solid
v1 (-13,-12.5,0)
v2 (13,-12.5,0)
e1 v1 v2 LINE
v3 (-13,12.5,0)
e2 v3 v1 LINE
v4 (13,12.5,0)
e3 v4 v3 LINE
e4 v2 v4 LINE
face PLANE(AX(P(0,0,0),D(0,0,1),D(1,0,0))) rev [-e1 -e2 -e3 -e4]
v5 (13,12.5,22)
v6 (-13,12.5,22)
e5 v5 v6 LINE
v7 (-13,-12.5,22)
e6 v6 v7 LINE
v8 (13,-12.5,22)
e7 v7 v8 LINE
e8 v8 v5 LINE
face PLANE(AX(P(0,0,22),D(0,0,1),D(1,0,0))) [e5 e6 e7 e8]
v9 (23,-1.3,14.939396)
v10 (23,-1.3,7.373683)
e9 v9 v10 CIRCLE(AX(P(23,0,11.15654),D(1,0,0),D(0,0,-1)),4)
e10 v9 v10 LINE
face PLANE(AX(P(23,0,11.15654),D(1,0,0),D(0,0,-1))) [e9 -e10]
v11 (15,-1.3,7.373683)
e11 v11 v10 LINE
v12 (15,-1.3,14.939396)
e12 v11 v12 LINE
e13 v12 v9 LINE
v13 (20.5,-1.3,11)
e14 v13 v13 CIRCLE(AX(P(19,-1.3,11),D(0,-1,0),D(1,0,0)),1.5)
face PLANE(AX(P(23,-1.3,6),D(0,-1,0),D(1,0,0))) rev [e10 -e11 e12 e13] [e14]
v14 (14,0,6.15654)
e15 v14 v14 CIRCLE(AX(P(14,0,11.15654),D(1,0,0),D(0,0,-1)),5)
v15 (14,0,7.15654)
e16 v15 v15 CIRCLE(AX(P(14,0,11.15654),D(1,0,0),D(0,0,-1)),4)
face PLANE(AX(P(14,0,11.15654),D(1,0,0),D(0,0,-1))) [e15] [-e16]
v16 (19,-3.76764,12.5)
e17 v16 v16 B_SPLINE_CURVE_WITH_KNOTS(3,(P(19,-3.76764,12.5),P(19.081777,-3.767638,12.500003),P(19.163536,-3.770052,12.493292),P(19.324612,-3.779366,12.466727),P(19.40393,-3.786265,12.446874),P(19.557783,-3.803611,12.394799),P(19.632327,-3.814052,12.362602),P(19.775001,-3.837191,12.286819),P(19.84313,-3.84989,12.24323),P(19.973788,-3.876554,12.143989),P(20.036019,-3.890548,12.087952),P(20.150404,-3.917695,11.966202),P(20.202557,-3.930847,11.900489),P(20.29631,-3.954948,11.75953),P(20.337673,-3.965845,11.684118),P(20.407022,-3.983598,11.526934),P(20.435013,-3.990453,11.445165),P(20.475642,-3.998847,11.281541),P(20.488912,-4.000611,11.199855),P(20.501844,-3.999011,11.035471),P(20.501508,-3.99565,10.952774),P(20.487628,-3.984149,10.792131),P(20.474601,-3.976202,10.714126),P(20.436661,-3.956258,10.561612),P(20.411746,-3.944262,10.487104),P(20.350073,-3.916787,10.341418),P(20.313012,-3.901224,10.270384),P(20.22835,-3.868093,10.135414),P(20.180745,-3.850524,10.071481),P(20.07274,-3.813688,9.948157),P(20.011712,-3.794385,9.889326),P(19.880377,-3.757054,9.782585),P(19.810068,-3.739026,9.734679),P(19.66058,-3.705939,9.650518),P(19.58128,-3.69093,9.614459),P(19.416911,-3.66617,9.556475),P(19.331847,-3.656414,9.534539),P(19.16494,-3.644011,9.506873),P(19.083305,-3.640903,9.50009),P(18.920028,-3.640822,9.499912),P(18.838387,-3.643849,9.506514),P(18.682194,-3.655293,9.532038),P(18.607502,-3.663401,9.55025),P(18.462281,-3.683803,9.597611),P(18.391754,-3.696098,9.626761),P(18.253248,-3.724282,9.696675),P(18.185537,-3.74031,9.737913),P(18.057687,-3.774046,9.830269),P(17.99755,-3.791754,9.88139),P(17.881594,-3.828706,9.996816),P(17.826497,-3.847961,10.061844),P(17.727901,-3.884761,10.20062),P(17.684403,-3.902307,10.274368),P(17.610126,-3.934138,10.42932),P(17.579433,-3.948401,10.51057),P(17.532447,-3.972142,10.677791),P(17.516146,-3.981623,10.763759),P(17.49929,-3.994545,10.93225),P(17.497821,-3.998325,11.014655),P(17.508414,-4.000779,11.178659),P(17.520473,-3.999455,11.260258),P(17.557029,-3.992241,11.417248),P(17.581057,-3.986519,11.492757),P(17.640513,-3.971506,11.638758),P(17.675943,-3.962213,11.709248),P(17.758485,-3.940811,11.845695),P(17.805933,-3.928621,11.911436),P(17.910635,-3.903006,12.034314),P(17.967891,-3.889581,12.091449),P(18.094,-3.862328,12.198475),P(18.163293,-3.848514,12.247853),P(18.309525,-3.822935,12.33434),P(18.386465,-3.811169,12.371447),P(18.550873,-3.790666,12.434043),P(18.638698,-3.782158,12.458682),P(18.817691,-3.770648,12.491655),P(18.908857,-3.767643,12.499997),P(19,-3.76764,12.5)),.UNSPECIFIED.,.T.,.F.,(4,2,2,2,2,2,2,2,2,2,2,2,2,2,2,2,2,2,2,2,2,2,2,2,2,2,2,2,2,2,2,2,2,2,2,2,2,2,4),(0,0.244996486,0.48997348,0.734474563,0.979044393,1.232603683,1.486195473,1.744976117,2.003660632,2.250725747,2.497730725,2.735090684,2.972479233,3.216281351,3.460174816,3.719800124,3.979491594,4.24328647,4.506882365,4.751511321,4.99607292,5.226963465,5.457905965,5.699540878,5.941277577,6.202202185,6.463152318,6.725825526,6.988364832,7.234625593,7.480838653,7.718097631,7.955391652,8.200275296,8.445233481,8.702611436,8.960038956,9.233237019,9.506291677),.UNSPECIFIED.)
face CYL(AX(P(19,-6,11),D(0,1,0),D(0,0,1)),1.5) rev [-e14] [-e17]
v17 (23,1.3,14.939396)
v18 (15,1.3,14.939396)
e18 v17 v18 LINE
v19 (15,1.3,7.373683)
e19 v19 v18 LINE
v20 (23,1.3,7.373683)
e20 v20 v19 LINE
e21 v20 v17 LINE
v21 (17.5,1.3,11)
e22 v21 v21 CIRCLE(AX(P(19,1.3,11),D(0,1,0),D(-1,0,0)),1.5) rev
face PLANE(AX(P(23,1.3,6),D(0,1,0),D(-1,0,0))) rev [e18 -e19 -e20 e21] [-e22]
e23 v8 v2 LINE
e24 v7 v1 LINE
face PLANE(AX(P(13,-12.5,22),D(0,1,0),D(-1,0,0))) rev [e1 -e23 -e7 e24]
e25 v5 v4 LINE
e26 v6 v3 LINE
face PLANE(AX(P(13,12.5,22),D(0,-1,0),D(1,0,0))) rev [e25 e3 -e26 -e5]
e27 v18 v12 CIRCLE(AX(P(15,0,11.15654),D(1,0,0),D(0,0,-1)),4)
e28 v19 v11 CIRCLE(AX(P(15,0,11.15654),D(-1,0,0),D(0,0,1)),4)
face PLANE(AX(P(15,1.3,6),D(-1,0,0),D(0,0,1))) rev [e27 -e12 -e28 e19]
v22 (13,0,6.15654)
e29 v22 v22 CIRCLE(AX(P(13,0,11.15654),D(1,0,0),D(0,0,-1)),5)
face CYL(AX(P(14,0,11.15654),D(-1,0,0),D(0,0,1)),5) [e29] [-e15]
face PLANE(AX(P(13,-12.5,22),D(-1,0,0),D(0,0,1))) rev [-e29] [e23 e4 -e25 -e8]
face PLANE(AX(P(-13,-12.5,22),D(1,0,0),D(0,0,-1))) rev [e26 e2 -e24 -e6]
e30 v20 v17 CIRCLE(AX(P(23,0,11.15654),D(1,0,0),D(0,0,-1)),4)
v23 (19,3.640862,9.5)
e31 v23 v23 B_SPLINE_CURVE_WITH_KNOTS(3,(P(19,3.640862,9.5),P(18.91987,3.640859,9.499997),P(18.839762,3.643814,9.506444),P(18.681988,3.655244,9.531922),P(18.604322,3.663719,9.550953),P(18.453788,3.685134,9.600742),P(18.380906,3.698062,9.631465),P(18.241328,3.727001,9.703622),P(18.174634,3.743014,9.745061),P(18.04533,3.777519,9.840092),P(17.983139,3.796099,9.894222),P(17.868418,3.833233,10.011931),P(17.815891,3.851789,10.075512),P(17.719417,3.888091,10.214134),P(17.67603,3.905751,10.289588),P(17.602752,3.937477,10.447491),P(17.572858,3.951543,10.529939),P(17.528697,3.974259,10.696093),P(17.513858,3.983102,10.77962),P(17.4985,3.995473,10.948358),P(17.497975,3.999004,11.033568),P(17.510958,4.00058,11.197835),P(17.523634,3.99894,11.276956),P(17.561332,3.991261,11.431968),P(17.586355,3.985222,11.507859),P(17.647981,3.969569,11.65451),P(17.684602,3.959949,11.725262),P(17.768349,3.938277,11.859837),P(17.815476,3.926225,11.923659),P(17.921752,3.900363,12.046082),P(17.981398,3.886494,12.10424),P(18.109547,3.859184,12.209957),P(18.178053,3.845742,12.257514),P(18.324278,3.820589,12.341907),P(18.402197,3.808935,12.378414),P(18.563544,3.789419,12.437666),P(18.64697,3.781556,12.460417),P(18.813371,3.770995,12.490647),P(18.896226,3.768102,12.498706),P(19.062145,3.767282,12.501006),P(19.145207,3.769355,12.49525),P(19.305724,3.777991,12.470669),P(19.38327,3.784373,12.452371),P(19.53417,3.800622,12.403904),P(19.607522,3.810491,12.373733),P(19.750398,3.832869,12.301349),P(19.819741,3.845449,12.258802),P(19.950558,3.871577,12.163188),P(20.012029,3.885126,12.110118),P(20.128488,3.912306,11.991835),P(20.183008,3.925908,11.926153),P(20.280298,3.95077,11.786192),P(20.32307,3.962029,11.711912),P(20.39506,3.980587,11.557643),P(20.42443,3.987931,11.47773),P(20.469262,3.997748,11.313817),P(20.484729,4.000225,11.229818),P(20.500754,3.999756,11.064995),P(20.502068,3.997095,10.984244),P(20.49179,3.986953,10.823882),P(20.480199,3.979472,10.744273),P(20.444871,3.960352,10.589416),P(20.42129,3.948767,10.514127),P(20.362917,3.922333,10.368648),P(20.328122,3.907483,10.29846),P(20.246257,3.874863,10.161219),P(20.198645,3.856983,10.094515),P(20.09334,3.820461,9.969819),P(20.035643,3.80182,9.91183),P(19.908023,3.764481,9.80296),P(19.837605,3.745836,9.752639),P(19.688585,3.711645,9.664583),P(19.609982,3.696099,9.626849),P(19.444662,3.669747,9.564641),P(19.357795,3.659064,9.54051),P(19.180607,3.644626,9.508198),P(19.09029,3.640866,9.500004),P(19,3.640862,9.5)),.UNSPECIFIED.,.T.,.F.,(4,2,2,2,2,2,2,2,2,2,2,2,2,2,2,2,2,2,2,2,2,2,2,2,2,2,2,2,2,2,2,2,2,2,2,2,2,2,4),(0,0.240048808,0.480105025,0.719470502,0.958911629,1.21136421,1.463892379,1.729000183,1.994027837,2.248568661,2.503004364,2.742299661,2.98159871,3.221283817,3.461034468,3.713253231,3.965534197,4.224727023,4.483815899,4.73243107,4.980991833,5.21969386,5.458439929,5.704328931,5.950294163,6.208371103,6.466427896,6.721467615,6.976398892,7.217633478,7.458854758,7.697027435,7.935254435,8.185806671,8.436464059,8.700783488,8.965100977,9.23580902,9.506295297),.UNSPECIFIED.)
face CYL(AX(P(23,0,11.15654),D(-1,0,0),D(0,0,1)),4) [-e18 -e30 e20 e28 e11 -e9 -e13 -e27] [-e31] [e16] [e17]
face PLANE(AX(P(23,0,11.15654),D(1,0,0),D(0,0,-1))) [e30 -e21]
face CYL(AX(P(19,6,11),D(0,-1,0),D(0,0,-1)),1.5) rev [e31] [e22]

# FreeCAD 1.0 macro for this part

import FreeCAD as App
import Part
import Sketcher

V = App.Vector

doc = App.newDocument("Part")
body = doc.addObject("PartDesign::Body", "Body")

# Sketch on XY plane
sketch1 = body.newObject("Sketcher::SketchObject", "Sketch")
sketch1.AttachmentSupport = (doc.getObject("XY_Plane"), [""])
sketch1.MapMode = "FlatFace"
sketch1.addGeometry(Part.LineSegment(V(-13, 12, 0), V(-13, -12, 0)), False)
sketch1.addGeometry(Part.LineSegment(V(-13, -12, 0), V(13, -12, 0)), False)
sketch1.addGeometry(Part.LineSegment(V(13, -12, 0), V(13, 12, 0)), False)
sketch1.addGeometry(Part.LineSegment(V(13, 12, 0), V(-13, 12, 0)), False)
sketch1.addConstraint(Sketcher.Constraint("Coincident", 0, 2, 1, 1))
sketch1.addConstraint(Sketcher.Constraint("Coincident", 1, 2, 2, 1))
sketch1.addConstraint(Sketcher.Constraint("Coincident", 2, 2, 3, 1))
sketch1.addConstraint(Sketcher.Constraint("Coincident", 3, 2, 0, 1))
sketch1.addConstraint(Sketcher.Constraint("Vertical", 0))
sketch1.addConstraint(Sketcher.Constraint("Horizontal", 1))
sketch1.addConstraint(Sketcher.Constraint("Vertical", 2))
sketch1.addConstraint(Sketcher.Constraint("Horizontal", 3))
sketch1.addConstraint(Sketcher.Constraint("Symmetric", 0, 2, 2, 2, -1, 1))
sketch1.addConstraint(Sketcher.Constraint("DistanceX", 1, 1, 1, 2, 26.0))
sketch1.addConstraint(Sketcher.Constraint("DistanceY", 0, 2, 0, 1, 25.0))
pad1 = body.newObject("PartDesign::Pad", "Pad")
pad1.Profile = sketch1
pad1.Length = 22

# Sketch on YZ plane
sketch2 = body.newObject("Sketcher::SketchObject", "Sketch001")
sketch2.AttachmentSupport = (doc.getObject("YZ_Plane"), [""])
sketch2.MapMode = "FlatFace"
sketch2.AttachmentOffset = App.Placement(V(0, 0, 13), App.Rotation())
sketch2.addGeometry(Part.Circle(V(0, 11, 0), V(0, 0, 1), 5), False)
sketch2.addConstraint(Sketcher.Constraint("PointOnObject", 0, 3, -2))
sketch2.addConstraint(Sketcher.Constraint("Diameter", 0, 10.0))
sketch2.addConstraint(Sketcher.Constraint("DistanceY", -1, 1, 0, 3, 11.15654))
pad2 = body.newObject("PartDesign::Pad", "Pad001")
pad2.Profile = sketch2
pad2.Length = 1

# Sketch on YZ plane
sketch3 = body.newObject("Sketcher::SketchObject", "Sketch002")
sketch3.AttachmentSupport = (doc.getObject("YZ_Plane"), [""])
sketch3.MapMode = "FlatFace"
sketch3.AttachmentOffset = App.Placement(V(0, 0, 14), App.Rotation())
sketch3.addGeometry(Part.Circle(V(0, 11.2, 0), V(0, 0, 1), 4), False)
sketch3.addConstraint(Sketcher.Constraint("PointOnObject", 0, 3, -2))
sketch3.addConstraint(Sketcher.Constraint("Diameter", 0, 8.0))
sketch3.addConstraint(Sketcher.Constraint("DistanceY", -1, 1, 0, 3, 11.15654))
pad3 = body.newObject("PartDesign::Pad", "Pad002")
pad3.Profile = sketch3
pad3.Length = 9

# Sketch on XY plane
sketch4 = body.newObject("Sketcher::SketchObject", "Sketch003")
sketch4.AttachmentSupport = (doc.getObject("XY_Plane"), [""])
sketch4.MapMode = "FlatFace"
sketch4.AttachmentOffset = App.Placement(V(0, 0, 11), App.Rotation())
sketch4.addGeometry(Part.LineSegment(V(15, 1.3, 0), V(15, -1.3, 0)), False)
sketch4.addGeometry(Part.LineSegment(V(15, -1.3, 0), V(23, -1.3, 0)), False)
sketch4.addGeometry(Part.LineSegment(V(23, -1.3, 0), V(23, 1.3, 0)), False)
sketch4.addGeometry(Part.LineSegment(V(23, 1.3, 0), V(15, 1.3, 0)), False)
sketch4.addConstraint(Sketcher.Constraint("Coincident", 0, 2, 1, 1))
sketch4.addConstraint(Sketcher.Constraint("Coincident", 1, 2, 2, 1))
sketch4.addConstraint(Sketcher.Constraint("Coincident", 2, 2, 3, 1))
sketch4.addConstraint(Sketcher.Constraint("Coincident", 3, 2, 0, 1))
sketch4.addConstraint(Sketcher.Constraint("Vertical", 0))
sketch4.addConstraint(Sketcher.Constraint("Horizontal", 1))
sketch4.addConstraint(Sketcher.Constraint("Vertical", 2))
sketch4.addConstraint(Sketcher.Constraint("Horizontal", 3))
sketch4.addConstraint(Sketcher.Constraint("DistanceX", 1, 1, 1, 2, 8.0))
sketch4.addConstraint(Sketcher.Constraint("DistanceY", 0, 2, 0, 1, 2.6))
sketch4.addConstraint(Sketcher.Constraint("DistanceX", -1, 1, 0, 2, 15.0))
sketch4.addConstraint(Sketcher.Constraint("DistanceY", 0, 2, -1, 1, 1.3))
pocket1 = body.newObject("PartDesign::Pocket", "Pocket")
pocket1.Profile = sketch4
pocket1.Length = 5
doc.recompute()

datumplane = body.newObject("PartDesign::Plane", "DatumPlane")
datumplane.AttachmentSupport = (doc.getObject("XY_Plane"), [""])
datumplane.MapMode = "FlatFace"
datumplane.AttachmentOffset = App.Placement(V(0, 0, 11), App.Rotation())
mirrored = body.newObject("PartDesign::Mirrored", "Mirrored")
mirrored.Originals = [pocket1]
mirrored.MirrorPlane = (datumplane, [""])
body.Tip = mirrored

# Sketch on XZ plane
sketch5 = body.newObject("Sketcher::SketchObject", "Sketch004")
sketch5.AttachmentSupport = (doc.getObject("XZ_Plane"), [""])
sketch5.MapMode = "FlatFace"
sketch5.addGeometry(Part.Circle(V(19, 11, 0), V(0, 0, 1), 1.5), False)
sketch5.addConstraint(Sketcher.Constraint("Diameter", 0, 3.0))
sketch5.addConstraint(Sketcher.Constraint("DistanceX", -1, 1, 0, 3, 19.0))
sketch5.addConstraint(Sketcher.Constraint("DistanceY", -1, 1, 0, 3, 11.0))
pocket2 = body.newObject("PartDesign::Pocket", "Pocket001")
pocket2.Profile = sketch5
pocket2.Length = 6
pocket2.Reversed = True
doc.recompute()

mirrored2 = body.newObject("PartDesign::Mirrored", "Mirrored001")
mirrored2.Originals = [pocket2]
mirrored2.MirrorPlane = (doc.getObject("XZ_Plane"), [""])
body.Tip = mirrored2

doc.recompute()
